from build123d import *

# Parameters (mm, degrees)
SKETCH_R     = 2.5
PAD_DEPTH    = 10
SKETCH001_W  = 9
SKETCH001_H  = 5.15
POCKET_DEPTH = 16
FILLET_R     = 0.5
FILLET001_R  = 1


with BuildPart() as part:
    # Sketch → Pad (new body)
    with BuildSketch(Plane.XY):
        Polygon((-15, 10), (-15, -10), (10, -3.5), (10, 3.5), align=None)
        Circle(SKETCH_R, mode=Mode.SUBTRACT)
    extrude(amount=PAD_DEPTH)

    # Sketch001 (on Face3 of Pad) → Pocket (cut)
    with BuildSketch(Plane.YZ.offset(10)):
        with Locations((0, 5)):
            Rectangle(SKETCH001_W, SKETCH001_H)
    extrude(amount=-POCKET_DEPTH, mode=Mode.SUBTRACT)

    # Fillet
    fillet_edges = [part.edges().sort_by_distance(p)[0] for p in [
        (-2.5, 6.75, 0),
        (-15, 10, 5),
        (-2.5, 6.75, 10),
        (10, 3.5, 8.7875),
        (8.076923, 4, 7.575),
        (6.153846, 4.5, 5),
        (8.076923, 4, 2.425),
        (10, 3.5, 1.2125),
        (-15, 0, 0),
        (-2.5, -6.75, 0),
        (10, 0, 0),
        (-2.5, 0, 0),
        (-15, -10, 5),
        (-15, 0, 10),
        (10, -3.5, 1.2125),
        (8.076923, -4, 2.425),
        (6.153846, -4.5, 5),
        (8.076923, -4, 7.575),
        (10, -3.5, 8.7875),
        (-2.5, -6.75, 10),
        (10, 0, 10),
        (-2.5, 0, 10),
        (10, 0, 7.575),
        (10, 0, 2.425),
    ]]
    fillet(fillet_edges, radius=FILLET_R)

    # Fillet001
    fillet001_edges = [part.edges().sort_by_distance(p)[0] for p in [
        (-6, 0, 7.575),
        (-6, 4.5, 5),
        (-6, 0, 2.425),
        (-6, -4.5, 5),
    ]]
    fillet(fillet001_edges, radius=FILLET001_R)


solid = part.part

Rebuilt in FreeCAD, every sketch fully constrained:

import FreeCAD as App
import Part
import Sketcher
from FreeCAD import Vector


def edges_at(feature, points):
    """Names of the edges that pass closest to the given points."""
    edges = feature.Shape.Edges
    near = lambda p: min(range(len(edges)), key=lambda i: edges[i].distToShape(Part.Vertex(*p))[0])
    return sorted({f"Edge{near(p) + 1}" for p in points})


def add_polygon(sketch, points):
    """Adds a closed chain of lines whose ends are joined by coincident constraints."""
    first, n = sketch.GeometryCount, len(points)
    for a, b in zip(points, points[1:] + points[:1]):
        sketch.addGeometry(Part.LineSegment(App.Vector(*a, 0), App.Vector(*b, 0)), False)
    for i in range(n):
        sketch.addConstraint(Sketcher.Constraint("Coincident", first + i, 2, first + (i + 1) % n, 1))

doc = App.newDocument("Part")
params = doc.addObject("Spreadsheet::Sheet", "Params")
for row, (alias, value) in enumerate([
    ("sketch1_diameter", "5 mm"),
    ("sketch1_height", "20 mm"),
    ("sketch1_height2", "7 mm"),
    ("pad1_length", "10 mm"),
    ("sketch2_width", "9 mm"),
    ("sketch2_height", "5.15 mm"),
    ("pocket1_length", "16 mm"),
    ("fillet_radius", "0.5 mm"),
    ("fillet2_radius", "1 mm"),
], start=1):
    params.set(f"A{row}", alias)
    params.set(f"B{row}", "=" + value)
    params.setAlias(f"B{row}", alias)

body = doc.addObject("PartDesign::Body", "Body")

# Sketch on XY plane
sketch1 = body.newObject("Sketcher::SketchObject", "Sketch")
sketch1.AttachmentSupport = (doc.getObject("XY_Plane"), [""])
sketch1.MapMode = "FlatFace"
add_polygon(sketch1, [(-15, 10), (-15, -10), (10, -3.5), (10, 3.5)])  # lines 0-3
sketch1.addGeometry(Part.Circle(Vector(0, 0, 0), Vector(0, 0, 1), 2.5), False)  # 4
sketch1.addConstraint(Sketcher.Constraint("Vertical", 0))
sketch1.addConstraint(Sketcher.Constraint("Vertical", 2))
sketch1.addConstraint(Sketcher.Constraint("Coincident", 4, 3, -1, 1))
sketch1.addConstraint(Sketcher.Constraint("Equal", 1, 3))
sketch1.addConstraint(Sketcher.Constraint("Diameter", 4, 5.0))
sketch1.addConstraint(Sketcher.Constraint("DistanceY", 0, 2, 0, 1, 20.0))
sketch1.addConstraint(Sketcher.Constraint("DistanceY", 2, 1, 2, 2, 7.0))
sketch1.addConstraint(Sketcher.Constraint("DistanceX", 0, 2, -1, 1, 15.0))
sketch1.addConstraint(Sketcher.Constraint("DistanceY", 0, 2, -1, 1, 10.0))
sketch1.addConstraint(Sketcher.Constraint("DistanceX", -1, 1, 1, 2, 10.0))
sketch1.setExpression("Constraints[8]", "Params.sketch1_diameter")
sketch1.setExpression("Constraints[9]", "Params.sketch1_height")
sketch1.setExpression("Constraints[10]", "Params.sketch1_height2")
pad1 = body.newObject("PartDesign::Pad", "Pad")
pad1.Profile = sketch1
pad1.setExpression("Length", "Params.pad1_length")

# Sketch on YZ plane
sketch2 = body.newObject("Sketcher::SketchObject", "Sketch001")
sketch2.AttachmentSupport = (doc.getObject("YZ_Plane"), [""])
sketch2.MapMode = "FlatFace"
sketch2.AttachmentOffset = App.Placement(Vector(0, 0, 10), App.Rotation())
add_polygon(sketch2, [(-4, 8), (-4, 2), (4, 2), (4, 8)])  # lines 0-3
sketch2.addConstraint(Sketcher.Constraint("Vertical", 0))
sketch2.addConstraint(Sketcher.Constraint("Horizontal", 1))
sketch2.addConstraint(Sketcher.Constraint("Vertical", 2))
sketch2.addConstraint(Sketcher.Constraint("Horizontal", 3))
sketch2.addConstraint(Sketcher.Constraint("DistanceX", 1, 1, 1, 2, 9.0))
sketch2.addConstraint(Sketcher.Constraint("DistanceY", 0, 2, 0, 1, 5.15))
sketch2.addConstraint(Sketcher.Constraint("DistanceX", 0, 2, -1, 1, 4.5))
sketch2.addConstraint(Sketcher.Constraint("DistanceY", -1, 1, 0, 2, 2.425))
sketch2.setExpression("Constraints[8]", "Params.sketch2_width")
sketch2.setExpression("Constraints[9]", "Params.sketch2_height")
pocket1 = body.newObject("PartDesign::Pocket", "Pocket")
pocket1.Profile = sketch2
pocket1.setExpression("Length", "Params.pocket1_length")
doc.recompute()

fillet = body.newObject("PartDesign::Fillet", "Fillet")
fillet.Base = (pocket1, edges_at(pocket1, [
    (-2.5, 6.75, 0),
    (-15, 10, 5),
    (-2.5, 6.75, 10),
    (10, 3.5, 8.787),
    (8.077, 4, 7.575),
    (6.154, 4.5, 5),
    (8.077, 4, 2.425),
    (10, 3.5, 1.212),
    (-15, 0, 0),
    (-2.5, -6.75, 0),
    (10, 0, 0),
    (-2.5, 0, 0),
    (-15, -10, 5),
    (-15, 0, 10),
    (10, -3.5, 1.212),
    (8.077, -4, 2.425),
    (6.154, -4.5, 5),
    (8.077, -4, 7.575),
    (10, -3.5, 8.787),
    (-2.5, -6.75, 10),
    (10, 0, 10),
    (-2.5, 0, 10),
    (10, 0, 7.575),
    (10, 0, 2.425),
]))
fillet.setExpression("Radius", "Params.fillet_radius")
doc.recompute()

fillet2 = body.newObject("PartDesign::Fillet", "Fillet001")
fillet2.Base = (fillet, edges_at(fillet, [
    (-6, 0, 7.575),
    (-6, 4.5, 5),
    (-6, 0, 2.425),
    (-6, -4.5, 5),
]))
fillet2.setExpression("Radius", "Params.fillet2_radius")

doc.recompute()
